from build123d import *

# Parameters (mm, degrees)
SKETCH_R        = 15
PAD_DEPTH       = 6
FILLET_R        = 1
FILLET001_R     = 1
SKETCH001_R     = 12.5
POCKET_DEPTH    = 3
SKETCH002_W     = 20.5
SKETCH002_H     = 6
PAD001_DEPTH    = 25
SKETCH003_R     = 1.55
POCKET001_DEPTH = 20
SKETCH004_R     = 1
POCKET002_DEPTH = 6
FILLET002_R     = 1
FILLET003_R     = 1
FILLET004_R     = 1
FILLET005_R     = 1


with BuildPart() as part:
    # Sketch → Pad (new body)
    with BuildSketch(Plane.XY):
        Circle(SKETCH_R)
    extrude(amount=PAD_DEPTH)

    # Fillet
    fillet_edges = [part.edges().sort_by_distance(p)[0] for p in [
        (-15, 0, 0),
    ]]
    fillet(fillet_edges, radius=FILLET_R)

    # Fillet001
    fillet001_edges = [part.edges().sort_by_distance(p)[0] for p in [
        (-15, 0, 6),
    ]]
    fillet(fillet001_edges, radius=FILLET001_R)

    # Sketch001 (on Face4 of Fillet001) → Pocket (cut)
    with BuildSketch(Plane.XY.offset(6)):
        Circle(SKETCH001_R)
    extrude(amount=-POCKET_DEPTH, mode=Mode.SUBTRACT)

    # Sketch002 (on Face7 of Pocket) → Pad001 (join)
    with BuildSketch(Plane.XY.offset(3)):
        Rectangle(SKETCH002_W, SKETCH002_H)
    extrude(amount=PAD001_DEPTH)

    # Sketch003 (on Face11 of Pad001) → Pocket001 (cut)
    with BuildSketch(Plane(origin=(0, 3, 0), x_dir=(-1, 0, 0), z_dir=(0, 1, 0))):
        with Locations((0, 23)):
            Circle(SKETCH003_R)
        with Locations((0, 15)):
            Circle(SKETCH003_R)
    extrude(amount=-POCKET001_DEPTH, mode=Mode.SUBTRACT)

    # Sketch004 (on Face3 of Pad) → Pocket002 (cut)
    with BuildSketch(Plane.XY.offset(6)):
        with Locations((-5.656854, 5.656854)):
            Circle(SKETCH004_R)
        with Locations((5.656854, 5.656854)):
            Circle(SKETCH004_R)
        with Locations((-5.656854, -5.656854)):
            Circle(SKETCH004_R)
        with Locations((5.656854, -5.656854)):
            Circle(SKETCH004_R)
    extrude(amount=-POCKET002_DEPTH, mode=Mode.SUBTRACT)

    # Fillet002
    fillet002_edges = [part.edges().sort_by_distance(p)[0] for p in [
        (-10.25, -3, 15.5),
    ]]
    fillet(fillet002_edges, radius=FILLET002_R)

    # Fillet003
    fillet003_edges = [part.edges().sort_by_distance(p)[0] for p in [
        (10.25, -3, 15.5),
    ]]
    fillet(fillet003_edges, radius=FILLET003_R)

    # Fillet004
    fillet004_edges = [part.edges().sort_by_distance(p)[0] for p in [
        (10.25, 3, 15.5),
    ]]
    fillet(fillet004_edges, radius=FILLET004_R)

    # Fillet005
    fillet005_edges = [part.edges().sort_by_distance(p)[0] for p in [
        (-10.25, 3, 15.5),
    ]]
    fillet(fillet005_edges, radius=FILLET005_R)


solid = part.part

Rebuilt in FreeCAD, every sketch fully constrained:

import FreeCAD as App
import Part
import Sketcher

V = App.Vector
Q = App.Units.Quantity


def edges_at(feature, points):
    """Names of the edges that pass closest to the given points."""
    edges = feature.Shape.Edges
    near = lambda p: min(range(len(edges)), key=lambda i: edges[i].distToShape(Part.Vertex(*p))[0])
    return sorted({f"Edge{near(p) + 1}" for p in points})

doc = App.newDocument("Part")
params = doc.addObject("Spreadsheet::Sheet", "Params")
for row, (alias, value) in enumerate([
    ("sketch1_diameter", "30 mm"),
    ("pad1_length", "6 mm"),
    ("fillet_radius", "1 mm"),
    ("fillet2_radius", "1 mm"),
    ("sketch2_diameter", "25 mm"),
    ("pocket1_length", "3 mm"),
    ("sketch3_height", "6 mm"),
    ("sketch3_width", "20.5 mm"),
    ("pad2_length", "25 mm"),
    ("sketch4_diameter", "3.1 mm"),
    ("pocket2_length", "20 mm"),
    ("sketch5_diameter", "2 mm"),
    ("pocket3_length", "6 mm"),
    ("fillet3_radius", "1 mm"),
    ("fillet4_radius", "1 mm"),
    ("fillet5_radius", "1 mm"),
    ("fillet6_radius", "1 mm"),
], start=1):
    params.set(f"A{row}", alias)
    params.set(f"B{row}", "=" + value)
    params.setAlias(f"B{row}", alias)

body = doc.addObject("PartDesign::Body", "Body")

# Sketch on XY plane
sketch1 = doc.addObject("Sketcher::SketchObject", "Sketch")
body.addObject(sketch1)
sketch1.AttachmentSupport = (doc.XY_Plane, [""])
sketch1.MapMode = "FlatFace"
sketch1.addGeometry(Part.Circle(V(0, 0, 0), V(0, 0, 1), 15), False)
sketch1.addConstraint([
    Sketcher.Constraint("Coincident", 0, 3, -1, 1),
    Sketcher.Constraint("Diameter", 0, Q("30 mm")),
])
sketch1.setExpression("Constraints[1]", "Params.sketch1_diameter")
pad1 = doc.addObject("PartDesign::Pad", "Pad")
body.addObject(pad1)
pad1.Profile = sketch1
pad1.setExpression("Length", "Params.pad1_length")
doc.recompute()

fillet = doc.addObject("PartDesign::Fillet", "Fillet")
body.addObject(fillet)
fillet.Base = (pad1, edges_at(pad1, [(-15, 0, 0)]))
fillet.setExpression("Radius", "Params.fillet_radius")
doc.recompute()

fillet2 = doc.addObject("PartDesign::Fillet", "Fillet001")
body.addObject(fillet2)
fillet2.Base = (fillet, edges_at(fillet, [(-15, 0, 6)]))
fillet2.setExpression("Radius", "Params.fillet2_radius")

# Sketch on XY plane
sketch2 = doc.addObject("Sketcher::SketchObject", "Sketch001")
body.addObject(sketch2)
sketch2.AttachmentSupport = (doc.XY_Plane, [""])
sketch2.MapMode = "FlatFace"
sketch2.AttachmentOffset = App.Placement(V(0, 0, 6), App.Rotation())
sketch2.addGeometry(Part.Circle(V(0, 0, 0), V(0, 0, 1), 12), False)
sketch2.addConstraint([
    Sketcher.Constraint("Coincident", 0, 3, -1, 1),
    Sketcher.Constraint("Diameter", 0, Q("25 mm")),
])
sketch2.setExpression("Constraints[1]", "Params.sketch2_diameter")
pocket1 = doc.addObject("PartDesign::Pocket", "Pocket")
body.addObject(pocket1)
pocket1.Profile = sketch2
pocket1.setExpression("Length", "Params.pocket1_length")

# Sketch on XY plane
sketch3 = doc.addObject("Sketcher::SketchObject", "Sketch002")
body.addObject(sketch3)
sketch3.AttachmentSupport = (doc.XY_Plane, [""])
sketch3.MapMode = "FlatFace"
sketch3.AttachmentOffset = App.Placement(V(0, 0, 3), App.Rotation())
sketch3.addGeometry([
    Part.LineSegment(V(-10, 3, 0), V(-10, -3, 0)),
    Part.LineSegment(V(-10, -3, 0), V(10, -3, 0)),
    Part.LineSegment(V(10, -3, 0), V(10, 3, 0)),
    Part.LineSegment(V(10, 3, 0), V(-10, 3, 0)),
], False)
sketch3.addConstraint([
    Sketcher.Constraint("Coincident", 0, 2, 1, 1),
    Sketcher.Constraint("Coincident", 1, 2, 2, 1),
    Sketcher.Constraint("Coincident", 2, 2, 3, 1),
    Sketcher.Constraint("Coincident", 3, 2, 0, 1),
    Sketcher.Constraint("Vertical", 0),
    Sketcher.Constraint("Horizontal", 1),
    Sketcher.Constraint("Vertical", 2),
    Sketcher.Constraint("Horizontal", 3),
    Sketcher.Constraint("Symmetric", 0, 2, 2, 2, -1, 1),
    Sketcher.Constraint("DistanceY", 0, 2, 0, 1, Q("6 mm")),
    Sketcher.Constraint("DistanceX", 1, 1, 1, 2, Q("20.5 mm")),
])
sketch3.setExpression("Constraints[9]", "Params.sketch3_height")
sketch3.setExpression("Constraints[10]", "Params.sketch3_width")
pad2 = doc.addObject("PartDesign::Pad", "Pad001")
body.addObject(pad2)
pad2.Profile = sketch3
pad2.setExpression("Length", "Params.pad2_length")

# Sketch on XZ plane
sketch4 = doc.addObject("Sketcher::SketchObject", "Sketch003")
body.addObject(sketch4)
sketch4.AttachmentSupport = (doc.XZ_Plane, [""])
sketch4.MapMode = "FlatFace"
sketch4.AttachmentOffset = App.Placement(V(0, 0, -3), App.Rotation())
sketch4.addGeometry([
    Part.Circle(V(0, 23, 0), V(0, 0, 1), 1.6),
    Part.Circle(V(0, 15, 0), V(0, 0, 1), 1.6),
], False)
sketch4.addConstraint([
    Sketcher.Constraint("Equal", 0, 1),
    Sketcher.Constraint("PointOnObject", 0, 3, -2),
    Sketcher.Constraint("PointOnObject", 1, 3, -2),
    Sketcher.Constraint("Diameter", 0, Q("3.1 mm")),
    Sketcher.Constraint("DistanceY", -1, 1, 0, 3, Q("23 mm")),
    Sketcher.Constraint("DistanceY", -1, 1, 1, 3, Q("15 mm")),
])
sketch4.setExpression("Constraints[3]", "Params.sketch4_diameter")
pocket2 = doc.addObject("PartDesign::Pocket", "Pocket001")
body.addObject(pocket2)
pocket2.Profile = sketch4
pocket2.setExpression("Length", "Params.pocket2_length")
pocket2.Reversed = True

# Sketch on XY plane
sketch5 = doc.addObject("Sketcher::SketchObject", "Sketch004")
body.addObject(sketch5)
sketch5.AttachmentSupport = (doc.XY_Plane, [""])
sketch5.MapMode = "FlatFace"
sketch5.AttachmentOffset = App.Placement(V(0, 0, 6), App.Rotation())
sketch5.addGeometry([
    Part.Circle(V(-5.7, 5.7, 0), V(0, 0, 1), 1),
    Part.Circle(V(5.7, 5.7, 0), V(0, 0, 1), 1),
    Part.Circle(V(-5.7, -5.7, 0), V(0, 0, 1), 1),
    Part.Circle(V(5.7, -5.7, 0), V(0, 0, 1), 1),
], False)
sketch5.addConstraint([
    Sketcher.Constraint("Equal", 0, 1),
    Sketcher.Constraint("Equal", 1, 2),
    Sketcher.Constraint("Equal", 2, 3),
    Sketcher.Constraint("Symmetric", 1, 3, 2, 3, -1, 1),
    Sketcher.Constraint("Symmetric", 0, 3, 3, 3, -1, 1),
    Sketcher.Constraint("Symmetric", 0, 3, 1, 3, -2),
    Sketcher.Constraint("Diameter", 0, Q("2 mm")),
    Sketcher.Constraint("DistanceX", 0, 3, -1, 1, Q("5.656854 mm")),
    Sketcher.Constraint("DistanceY", -1, 1, 0, 3, Q("5.656854 mm")),
])
sketch5.setExpression("Constraints[6]", "Params.sketch5_diameter")
pocket3 = doc.addObject("PartDesign::Pocket", "Pocket002")
body.addObject(pocket3)
pocket3.Profile = sketch5
pocket3.setExpression("Length", "Params.pocket3_length")
doc.recompute()

fillet3 = doc.addObject("PartDesign::Fillet", "Fillet002")
body.addObject(fillet3)
fillet3.Base = (pocket3, edges_at(pocket3, [(-10.25, -3, 15.5)]))
fillet3.setExpression("Radius", "Params.fillet3_radius")
doc.recompute()

fillet4 = doc.addObject("PartDesign::Fillet", "Fillet003")
body.addObject(fillet4)
fillet4.Base = (fillet3, edges_at(fillet3, [(10.25, -3, 15.5)]))
fillet4.setExpression("Radius", "Params.fillet4_radius")
doc.recompute()

fillet5 = doc.addObject("PartDesign::Fillet", "Fillet004")
body.addObject(fillet5)
fillet5.Base = (fillet4, edges_at(fillet4, [(10.25, 3, 15.5)]))
fillet5.setExpression("Radius", "Params.fillet5_radius")
doc.recompute()

fillet6 = doc.addObject("PartDesign::Fillet", "Fillet005")
body.addObject(fillet6)
fillet6.Base = (fillet5, edges_at(fillet5, [(-10.25, 3, 15.5)]))
fillet6.setExpression("Radius", "Params.fillet6_radius")

doc.recompute()
